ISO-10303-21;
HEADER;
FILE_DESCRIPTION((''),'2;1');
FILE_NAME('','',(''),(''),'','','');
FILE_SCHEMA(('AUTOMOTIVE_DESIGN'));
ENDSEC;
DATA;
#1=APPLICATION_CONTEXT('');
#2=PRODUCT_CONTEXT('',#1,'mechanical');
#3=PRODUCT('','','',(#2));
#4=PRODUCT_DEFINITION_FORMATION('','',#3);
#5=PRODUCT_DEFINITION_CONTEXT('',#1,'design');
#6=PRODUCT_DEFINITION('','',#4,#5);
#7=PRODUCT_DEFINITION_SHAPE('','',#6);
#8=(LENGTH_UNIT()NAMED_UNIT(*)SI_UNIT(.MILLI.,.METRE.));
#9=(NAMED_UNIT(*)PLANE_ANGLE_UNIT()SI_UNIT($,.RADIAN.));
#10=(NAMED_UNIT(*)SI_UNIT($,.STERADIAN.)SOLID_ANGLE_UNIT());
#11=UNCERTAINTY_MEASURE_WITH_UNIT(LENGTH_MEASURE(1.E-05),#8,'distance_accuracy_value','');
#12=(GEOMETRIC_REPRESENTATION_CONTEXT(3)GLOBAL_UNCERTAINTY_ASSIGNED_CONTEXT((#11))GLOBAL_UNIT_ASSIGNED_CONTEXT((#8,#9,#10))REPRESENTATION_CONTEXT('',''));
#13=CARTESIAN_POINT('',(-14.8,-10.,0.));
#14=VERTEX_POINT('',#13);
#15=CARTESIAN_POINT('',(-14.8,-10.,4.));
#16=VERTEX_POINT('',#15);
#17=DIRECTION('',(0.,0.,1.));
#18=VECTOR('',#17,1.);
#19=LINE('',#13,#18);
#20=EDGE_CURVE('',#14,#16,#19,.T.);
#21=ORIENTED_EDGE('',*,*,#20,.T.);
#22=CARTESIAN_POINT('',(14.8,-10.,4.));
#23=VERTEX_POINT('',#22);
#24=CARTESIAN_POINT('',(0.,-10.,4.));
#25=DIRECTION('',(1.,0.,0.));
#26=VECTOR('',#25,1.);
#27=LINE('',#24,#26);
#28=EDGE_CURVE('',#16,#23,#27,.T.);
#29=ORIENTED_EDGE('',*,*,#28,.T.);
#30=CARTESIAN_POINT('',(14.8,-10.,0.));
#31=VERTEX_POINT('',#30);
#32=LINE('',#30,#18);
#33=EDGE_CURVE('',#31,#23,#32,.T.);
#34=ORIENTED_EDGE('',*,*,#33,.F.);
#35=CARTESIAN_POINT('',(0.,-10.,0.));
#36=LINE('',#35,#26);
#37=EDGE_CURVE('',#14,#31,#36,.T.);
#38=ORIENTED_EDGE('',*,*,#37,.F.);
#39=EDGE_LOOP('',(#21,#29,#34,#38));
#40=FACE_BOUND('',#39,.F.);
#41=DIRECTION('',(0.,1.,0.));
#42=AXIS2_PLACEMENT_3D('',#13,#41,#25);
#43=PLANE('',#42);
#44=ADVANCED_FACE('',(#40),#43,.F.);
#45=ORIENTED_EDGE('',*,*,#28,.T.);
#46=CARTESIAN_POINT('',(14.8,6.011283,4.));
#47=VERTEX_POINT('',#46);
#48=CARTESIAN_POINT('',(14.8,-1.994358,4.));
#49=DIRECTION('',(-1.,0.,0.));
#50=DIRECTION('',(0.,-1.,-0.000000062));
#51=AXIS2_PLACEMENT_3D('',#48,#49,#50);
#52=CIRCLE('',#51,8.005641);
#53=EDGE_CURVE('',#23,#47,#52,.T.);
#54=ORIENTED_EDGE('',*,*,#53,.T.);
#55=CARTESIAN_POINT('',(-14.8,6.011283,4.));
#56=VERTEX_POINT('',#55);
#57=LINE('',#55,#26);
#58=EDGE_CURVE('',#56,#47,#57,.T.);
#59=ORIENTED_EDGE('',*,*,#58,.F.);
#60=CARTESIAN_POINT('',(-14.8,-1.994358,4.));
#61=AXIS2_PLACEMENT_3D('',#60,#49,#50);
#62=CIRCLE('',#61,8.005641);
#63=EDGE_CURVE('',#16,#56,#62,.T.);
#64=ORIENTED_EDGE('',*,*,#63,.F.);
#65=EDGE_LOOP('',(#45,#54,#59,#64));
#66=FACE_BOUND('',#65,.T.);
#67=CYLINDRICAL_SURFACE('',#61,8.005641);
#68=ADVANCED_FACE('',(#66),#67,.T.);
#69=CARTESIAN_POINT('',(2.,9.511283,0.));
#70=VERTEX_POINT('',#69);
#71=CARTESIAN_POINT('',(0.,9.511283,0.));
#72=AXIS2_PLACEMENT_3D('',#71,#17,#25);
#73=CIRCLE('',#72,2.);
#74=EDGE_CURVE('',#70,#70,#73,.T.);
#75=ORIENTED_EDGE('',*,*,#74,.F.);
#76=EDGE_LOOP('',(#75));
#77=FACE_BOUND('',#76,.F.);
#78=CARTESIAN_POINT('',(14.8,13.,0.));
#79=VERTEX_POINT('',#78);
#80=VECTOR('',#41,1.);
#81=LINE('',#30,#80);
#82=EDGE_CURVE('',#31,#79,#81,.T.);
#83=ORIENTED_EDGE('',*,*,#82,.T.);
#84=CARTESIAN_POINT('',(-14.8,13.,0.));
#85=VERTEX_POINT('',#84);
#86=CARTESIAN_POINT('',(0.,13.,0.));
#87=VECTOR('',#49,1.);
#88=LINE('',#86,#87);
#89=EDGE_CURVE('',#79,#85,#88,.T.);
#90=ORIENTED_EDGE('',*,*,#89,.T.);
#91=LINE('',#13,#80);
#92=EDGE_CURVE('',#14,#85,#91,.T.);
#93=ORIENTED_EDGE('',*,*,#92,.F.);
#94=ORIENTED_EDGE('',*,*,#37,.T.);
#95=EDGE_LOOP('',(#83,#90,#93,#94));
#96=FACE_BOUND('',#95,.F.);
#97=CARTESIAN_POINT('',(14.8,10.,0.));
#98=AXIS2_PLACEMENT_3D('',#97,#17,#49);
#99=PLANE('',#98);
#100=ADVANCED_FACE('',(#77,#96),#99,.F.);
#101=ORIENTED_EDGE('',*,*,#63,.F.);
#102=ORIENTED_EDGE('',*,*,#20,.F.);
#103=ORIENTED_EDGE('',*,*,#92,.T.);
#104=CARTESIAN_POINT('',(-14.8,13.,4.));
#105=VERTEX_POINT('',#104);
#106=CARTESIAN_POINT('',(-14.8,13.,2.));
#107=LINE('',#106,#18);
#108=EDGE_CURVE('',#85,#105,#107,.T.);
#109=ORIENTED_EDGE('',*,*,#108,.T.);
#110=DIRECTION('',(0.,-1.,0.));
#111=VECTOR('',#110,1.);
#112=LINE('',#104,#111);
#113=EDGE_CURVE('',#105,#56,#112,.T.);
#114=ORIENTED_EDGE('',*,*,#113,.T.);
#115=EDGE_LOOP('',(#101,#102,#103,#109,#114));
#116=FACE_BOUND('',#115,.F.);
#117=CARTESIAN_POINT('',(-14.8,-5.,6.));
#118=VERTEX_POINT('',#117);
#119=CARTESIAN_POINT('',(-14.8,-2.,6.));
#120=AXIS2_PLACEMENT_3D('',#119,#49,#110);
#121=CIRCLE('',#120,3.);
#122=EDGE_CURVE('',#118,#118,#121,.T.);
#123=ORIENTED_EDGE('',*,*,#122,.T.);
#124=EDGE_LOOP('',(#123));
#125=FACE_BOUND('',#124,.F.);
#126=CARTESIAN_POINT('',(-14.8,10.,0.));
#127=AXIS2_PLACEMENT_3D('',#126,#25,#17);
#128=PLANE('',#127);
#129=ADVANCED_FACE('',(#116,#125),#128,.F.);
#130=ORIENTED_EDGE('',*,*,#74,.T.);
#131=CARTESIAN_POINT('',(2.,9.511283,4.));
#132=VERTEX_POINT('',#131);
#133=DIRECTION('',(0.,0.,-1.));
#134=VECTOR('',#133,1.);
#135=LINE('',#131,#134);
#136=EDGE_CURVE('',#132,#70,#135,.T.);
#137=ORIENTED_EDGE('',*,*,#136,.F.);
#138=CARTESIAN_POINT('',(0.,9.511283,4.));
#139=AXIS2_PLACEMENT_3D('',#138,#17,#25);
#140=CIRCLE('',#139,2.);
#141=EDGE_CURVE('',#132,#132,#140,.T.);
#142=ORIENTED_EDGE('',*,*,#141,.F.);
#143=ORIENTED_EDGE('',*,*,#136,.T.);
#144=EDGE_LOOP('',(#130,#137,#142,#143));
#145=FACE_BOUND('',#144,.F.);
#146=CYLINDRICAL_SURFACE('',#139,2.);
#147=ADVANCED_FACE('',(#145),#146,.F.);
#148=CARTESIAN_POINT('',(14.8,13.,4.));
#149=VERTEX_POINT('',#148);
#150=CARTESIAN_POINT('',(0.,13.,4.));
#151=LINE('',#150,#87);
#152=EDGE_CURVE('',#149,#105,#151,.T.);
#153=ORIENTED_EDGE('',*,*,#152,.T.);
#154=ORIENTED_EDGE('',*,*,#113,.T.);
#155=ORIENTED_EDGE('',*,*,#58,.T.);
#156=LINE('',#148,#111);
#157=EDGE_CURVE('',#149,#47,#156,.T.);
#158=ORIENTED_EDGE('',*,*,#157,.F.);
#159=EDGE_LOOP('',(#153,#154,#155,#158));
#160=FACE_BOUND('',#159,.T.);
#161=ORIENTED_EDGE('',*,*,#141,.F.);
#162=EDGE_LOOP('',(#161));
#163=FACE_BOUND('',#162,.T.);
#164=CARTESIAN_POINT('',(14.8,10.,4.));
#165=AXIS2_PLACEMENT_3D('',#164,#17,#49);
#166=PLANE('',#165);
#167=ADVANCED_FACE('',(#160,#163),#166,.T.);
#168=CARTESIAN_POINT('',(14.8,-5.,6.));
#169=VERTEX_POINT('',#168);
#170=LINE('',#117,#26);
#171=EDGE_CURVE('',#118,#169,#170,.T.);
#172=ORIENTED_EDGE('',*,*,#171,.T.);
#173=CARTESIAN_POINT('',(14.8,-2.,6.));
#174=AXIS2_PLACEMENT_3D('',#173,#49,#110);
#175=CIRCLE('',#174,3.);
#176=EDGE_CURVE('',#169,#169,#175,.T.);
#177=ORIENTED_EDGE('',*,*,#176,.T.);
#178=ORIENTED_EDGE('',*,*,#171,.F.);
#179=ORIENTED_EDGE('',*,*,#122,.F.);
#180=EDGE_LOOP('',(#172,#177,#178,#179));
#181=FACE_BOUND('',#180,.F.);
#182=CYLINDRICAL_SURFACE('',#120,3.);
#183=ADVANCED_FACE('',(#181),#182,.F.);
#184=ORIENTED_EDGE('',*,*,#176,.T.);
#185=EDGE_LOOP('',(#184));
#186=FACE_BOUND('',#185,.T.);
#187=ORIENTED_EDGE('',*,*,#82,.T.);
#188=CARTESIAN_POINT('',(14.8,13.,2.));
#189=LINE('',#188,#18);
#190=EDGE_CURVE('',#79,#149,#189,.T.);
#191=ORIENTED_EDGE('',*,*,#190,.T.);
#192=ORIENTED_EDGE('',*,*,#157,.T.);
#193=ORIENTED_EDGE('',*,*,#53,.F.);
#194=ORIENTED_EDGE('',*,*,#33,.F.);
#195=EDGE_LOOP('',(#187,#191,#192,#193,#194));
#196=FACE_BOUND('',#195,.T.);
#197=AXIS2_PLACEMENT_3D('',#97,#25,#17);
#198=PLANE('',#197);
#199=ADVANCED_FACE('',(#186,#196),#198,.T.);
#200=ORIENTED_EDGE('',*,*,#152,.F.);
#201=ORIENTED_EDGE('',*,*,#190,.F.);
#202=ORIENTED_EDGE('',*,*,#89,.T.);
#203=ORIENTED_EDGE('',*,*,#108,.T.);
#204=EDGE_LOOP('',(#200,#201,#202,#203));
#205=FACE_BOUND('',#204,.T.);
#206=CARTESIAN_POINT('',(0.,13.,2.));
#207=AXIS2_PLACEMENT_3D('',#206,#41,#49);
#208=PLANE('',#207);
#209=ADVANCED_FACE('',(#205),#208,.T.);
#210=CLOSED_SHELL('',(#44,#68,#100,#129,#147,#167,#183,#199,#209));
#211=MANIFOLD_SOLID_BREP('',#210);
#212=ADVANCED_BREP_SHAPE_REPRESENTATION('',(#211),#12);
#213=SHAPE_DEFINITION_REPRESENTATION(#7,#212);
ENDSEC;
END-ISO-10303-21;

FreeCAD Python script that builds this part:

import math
import FreeCAD as App
import Part
import Sketcher
from FreeCAD import Vector


def add_polygon(sketch, points):
    """Adds a closed chain of lines whose ends are joined by coincident constraints."""
    first, n = sketch.GeometryCount, len(points)
    for a, b in zip(points, points[1:] + points[:1]):
        sketch.addGeometry(Part.LineSegment(App.Vector(*a, 0), App.Vector(*b, 0)), False)
    for i in range(n):
        sketch.addConstraint(Sketcher.Constraint("Coincident", first + i, 2, first + (i + 1) % n, 1))

doc = App.newDocument("Part")
body = doc.addObject("PartDesign::Body", "Body")

sketch1 = doc.addObject("Sketcher::SketchObject", "Sketch")
body.addObject(sketch1)
sketch1.AttachmentSupport = (doc.XY_Plane, [""])
sketch1.MapMode = "FlatFace"
add_polygon(sketch1, [(15, 10), (-15, 10), (-15, -10), (15, -10)])
sketch1.addConstraint([
    Sketcher.Constraint("Horizontal", 0),
    Sketcher.Constraint("Vertical", 1),
    Sketcher.Constraint("Horizontal", 2),
    Sketcher.Constraint("Vertical", 3),
    Sketcher.Constraint("Symmetric", 0, 2, 2, 2, -1, 1),
    Sketcher.Constraint("DistanceY", 1, 2, 1, 1, 20.0),
    Sketcher.Constraint("DistanceX", 0, 2, 0, 1, 29.6),
])
pad1 = doc.addObject("PartDesign::Pad", "Pad")
body.addObject(pad1)
pad1.Profile = sketch1
pad1.Length = 4

sketch2 = doc.addObject("Sketcher::SketchObject", "Sketch001")
body.addObject(sketch2)
sketch2.AttachmentSupport = (doc.YZ_Plane, [""])
sketch2.MapMode = "FlatFace"
sketch2.AttachmentOffset = App.Placement(Vector(0, 0, -14.8), App.Rotation())
sketch2.addGeometry([
    Part.LineSegment(Vector(6, 4, 0), Vector(-10, 4, 0)),
    Part.ArcOfCircle(Part.Circle(Vector(-2, 4, 0), Vector(0, 0, 1), 8), math.radians(0), math.radians(180)),
], False)
sketch2.addConstraint([
    Sketcher.Constraint("Coincident", 0, 1, 1, 1),
    Sketcher.Constraint("Coincident", 1, 2, 0, 2),
    Sketcher.Constraint("Horizontal", 0),
    Sketcher.Constraint("Horizontal", 1, 3, 0, 1),
    Sketcher.Constraint("DistanceY", -1, 1, 1, 3, 4.0),
    Sketcher.Constraint("DistanceX", 1, 2, -1, 1, 10.0),
    Sketcher.Constraint("Radius", 1, 8.005641),
])
pad2 = doc.addObject("PartDesign::Pad", "Pad001")
body.addObject(pad2)
pad2.Profile = sketch2
pad2.Length = 29.6

sketch3 = doc.addObject("Sketcher::SketchObject", "Sketch002")
body.addObject(sketch3)
sketch3.AttachmentSupport = (doc.YZ_Plane, [""])
sketch3.MapMode = "FlatFace"
sketch3.AttachmentOffset = App.Placement(Vector(0, 0, -14.8), App.Rotation())
sketch3.addGeometry(Part.Circle(Vector(-2, 6, 0), Vector(0, 0, 1), 3), False)
sketch3.addConstraint([
    Sketcher.Constraint("Diameter", 0, 6.0),
    Sketcher.Constraint("DistanceX", 0, 3, -1, 1, 2.0),
    Sketcher.Constraint("DistanceY", -1, 1, 0, 3, 6.0),
])
pocket1 = doc.addObject("PartDesign::Pocket", "Pocket")
body.addObject(pocket1)
pocket1.Profile = sketch3
pocket1.Length = 33
pocket1.Reversed = True

sketch4 = doc.addObject("Sketcher::SketchObject", "Sketch003")
body.addObject(sketch4)
sketch4.AttachmentSupport = (doc.XZ_Plane, [""])
sketch4.MapMode = "FlatFace"
sketch4.AttachmentOffset = App.Placement(Vector(0, 0, -10), App.Rotation())
add_polygon(sketch4, [(14.8, 4), (14.8, 0), (-14.8, 0), (-14.8, 4)])
sketch4.addConstraint([
    Sketcher.Constraint("Vertical", 0),
    Sketcher.Constraint("Horizontal", 1),
    Sketcher.Constraint("Vertical", 2),
    Sketcher.Constraint("Horizontal", 3),
    Sketcher.Constraint("Symmetric", 0, 2, 1, 2, -1, 1),
    Sketcher.Constraint("DistanceY", 0, 2, 0, 1, 4.0),
    Sketcher.Constraint("DistanceX", 1, 2, 1, 1, 29.6),
])
pad3 = doc.addObject("PartDesign::Pad", "Pad002")
body.addObject(pad3)
pad3.Profile = sketch4
pad3.Length = 3
pad3.Reversed = True

sketch5 = doc.addObject("Sketcher::SketchObject", "Sketch004")
body.addObject(sketch5)
sketch5.AttachmentSupport = (doc.XY_Plane, [""])
sketch5.MapMode = "FlatFace"
sketch5.AttachmentOffset = App.Placement(Vector(0, 0, 4), App.Rotation())
sketch5.addGeometry(Part.Circle(Vector(0, 9.5, 0), Vector(0, 0, 1), 2), False)
sketch5.addConstraint([
    Sketcher.Constraint("PointOnObject", 0, 3, -2),
    Sketcher.Constraint("Diameter", 0, 4.0),
    Sketcher.Constraint("DistanceY", -1, 1, 0, 3, 9.511283),
])
pocket2 = doc.addObject("PartDesign::Pocket", "Pocket001")
body.addObject(pocket2)
pocket2.Profile = sketch5
pocket2.Length = 25

doc.recompute()
